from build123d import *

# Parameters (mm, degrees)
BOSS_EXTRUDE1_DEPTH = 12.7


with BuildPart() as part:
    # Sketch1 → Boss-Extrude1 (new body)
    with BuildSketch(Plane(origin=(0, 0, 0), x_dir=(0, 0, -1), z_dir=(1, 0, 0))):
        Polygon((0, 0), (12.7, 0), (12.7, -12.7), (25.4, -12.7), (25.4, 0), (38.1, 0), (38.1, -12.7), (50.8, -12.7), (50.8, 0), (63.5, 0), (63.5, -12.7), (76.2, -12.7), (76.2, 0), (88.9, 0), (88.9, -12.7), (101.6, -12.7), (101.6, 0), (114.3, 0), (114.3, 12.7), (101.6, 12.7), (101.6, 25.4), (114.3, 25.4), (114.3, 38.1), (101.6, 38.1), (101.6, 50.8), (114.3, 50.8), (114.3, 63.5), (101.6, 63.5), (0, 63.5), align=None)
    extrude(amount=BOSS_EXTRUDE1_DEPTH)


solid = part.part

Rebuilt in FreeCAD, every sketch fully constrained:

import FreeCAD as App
import Part
import Sketcher
Q = App.Units.Quantity

doc = App.newDocument("Part")
params = doc.addObject("Spreadsheet::Sheet", "Params")
for row, (alias, value) in enumerate([
    ("sketch1_width", "0.5 in"),
    ("pad1_length", "0.5 in"),
], start=1):
    params.set(f"A{row}", alias)
    params.set(f"B{row}", "=" + value)
    params.setAlias(f"B{row}", alias)

body = doc.addObject("PartDesign::Body", "Body")

# Sketch on YZ plane
sketch1 = body.newObject("Sketcher::SketchObject", "Sketch")
sketch1.AttachmentSupport = (doc.getObject("YZ_Plane"), [""])
sketch1.MapMode = "FlatFace"
sketch1.addGeometry([
    Part.LineSegment(App.Vector(0, 0, 0), App.Vector(0, -13, 0)),  # 0
    Part.LineSegment(App.Vector(0, -13, 0), App.Vector(-13, -13, 0)),  # 1
    Part.LineSegment(App.Vector(-13, -13, 0), App.Vector(-13, -25, 0)),  # 2
    Part.LineSegment(App.Vector(-13, -25, 0), App.Vector(0, -25, 0)),  # 3
    Part.LineSegment(App.Vector(0, -25, 0), App.Vector(0, -38, 0)),  # 4
    Part.LineSegment(App.Vector(0, -38, 0), App.Vector(-13, -38, 0)),  # 5
    Part.LineSegment(App.Vector(-13, -38, 0), App.Vector(-13, -51, 0)),  # 6
    Part.LineSegment(App.Vector(-13, -51, 0), App.Vector(0, -51, 0)),  # 7
    Part.LineSegment(App.Vector(0, -51, 0), App.Vector(0, -64, 0)),  # 8
    Part.LineSegment(App.Vector(0, -64, 0), App.Vector(-13, -64, 0)),  # 9
    Part.LineSegment(App.Vector(-13, -64, 0), App.Vector(-13, -76, 0)),  # 10
    Part.LineSegment(App.Vector(-13, -76, 0), App.Vector(0, -76, 0)),  # 11
    Part.LineSegment(App.Vector(0, -76, 0), App.Vector(0, -89, 0)),  # 12
    Part.LineSegment(App.Vector(0, -89, 0), App.Vector(-13, -89, 0)),  # 13
    Part.LineSegment(App.Vector(-13, -89, 0), App.Vector(-13, -102, 0)),  # 14
    Part.LineSegment(App.Vector(-13, -102, 0), App.Vector(0, -102, 0)),  # 15
    Part.LineSegment(App.Vector(0, -102, 0), App.Vector(0, -114, 0)),  # 16
    Part.LineSegment(App.Vector(0, -114, 0), App.Vector(13, -114, 0)),  # 17
    Part.LineSegment(App.Vector(13, -114, 0), App.Vector(13, -102, 0)),  # 18
    Part.LineSegment(App.Vector(13, -102, 0), App.Vector(25, -102, 0)),  # 19
    Part.LineSegment(App.Vector(25, -102, 0), App.Vector(25, -114, 0)),  # 20
    Part.LineSegment(App.Vector(25, -114, 0), App.Vector(38, -114, 0)),  # 21
    Part.LineSegment(App.Vector(38, -114, 0), App.Vector(38, -102, 0)),  # 22
    Part.LineSegment(App.Vector(38, -102, 0), App.Vector(51, -102, 0)),  # 23
    Part.LineSegment(App.Vector(51, -102, 0), App.Vector(51, -114, 0)),  # 24
    Part.LineSegment(App.Vector(51, -114, 0), App.Vector(64, -114, 0)),  # 25
    Part.LineSegment(App.Vector(64, -114, 0), App.Vector(64, 0, 0)),  # 26
    Part.LineSegment(App.Vector(64, 0, 0), App.Vector(0, 0, 0)),  # 27
], False)
sketch1.addConstraint([
    Sketcher.Constraint("Coincident", 0, 2, 1, 1),
    Sketcher.Constraint("Coincident", 1, 2, 2, 1),
    Sketcher.Constraint("Coincident", 2, 2, 3, 1),
    Sketcher.Constraint("Coincident", 3, 2, 4, 1),
    Sketcher.Constraint("Coincident", 4, 2, 5, 1),
    Sketcher.Constraint("Coincident", 5, 2, 6, 1),
    Sketcher.Constraint("Coincident", 6, 2, 7, 1),
    Sketcher.Constraint("Coincident", 7, 2, 8, 1),
    Sketcher.Constraint("Coincident", 8, 2, 9, 1),
    Sketcher.Constraint("Coincident", 9, 2, 10, 1),
    Sketcher.Constraint("Coincident", 10, 2, 11, 1),
    Sketcher.Constraint("Coincident", 11, 2, 12, 1),
    Sketcher.Constraint("Coincident", 12, 2, 13, 1),
    Sketcher.Constraint("Coincident", 13, 2, 14, 1),
    Sketcher.Constraint("Coincident", 14, 2, 15, 1),
    Sketcher.Constraint("Coincident", 15, 2, 16, 1),
    Sketcher.Constraint("Coincident", 16, 2, 17, 1),
    Sketcher.Constraint("Coincident", 17, 2, 18, 1),
    Sketcher.Constraint("Coincident", 18, 2, 19, 1),
    Sketcher.Constraint("Coincident", 19, 2, 20, 1),
    Sketcher.Constraint("Coincident", 20, 2, 21, 1),
    Sketcher.Constraint("Coincident", 21, 2, 22, 1),
    Sketcher.Constraint("Coincident", 22, 2, 23, 1),
    Sketcher.Constraint("Coincident", 23, 2, 24, 1),
    Sketcher.Constraint("Coincident", 24, 2, 25, 1),
    Sketcher.Constraint("Coincident", 25, 2, 26, 1),
    Sketcher.Constraint("Coincident", 26, 2, 27, 1),
    Sketcher.Constraint("Coincident", 27, 2, 0, 1),
    Sketcher.Constraint("Vertical", 0),
    Sketcher.Constraint("Horizontal", 1),
    Sketcher.Constraint("Vertical", 2),
    Sketcher.Constraint("Horizontal", 3),
    Sketcher.Constraint("Vertical", 4),
    Sketcher.Constraint("Horizontal", 5),
    Sketcher.Constraint("Vertical", 6),
    Sketcher.Constraint("Horizontal", 7),
    Sketcher.Constraint("Vertical", 8),
    Sketcher.Constraint("Horizontal", 9),
    Sketcher.Constraint("Vertical", 10),
    Sketcher.Constraint("Horizontal", 11),
    Sketcher.Constraint("Vertical", 12),
    Sketcher.Constraint("Horizontal", 13),
    Sketcher.Constraint("Vertical", 14),
    Sketcher.Constraint("Horizontal", 15),
    Sketcher.Constraint("Vertical", 16),
    Sketcher.Constraint("Horizontal", 17),
    Sketcher.Constraint("Vertical", 18),
    Sketcher.Constraint("Horizontal", 19),
    Sketcher.Constraint("Vertical", 20),
    Sketcher.Constraint("Horizontal", 21),
    Sketcher.Constraint("Vertical", 22),
    Sketcher.Constraint("Horizontal", 23),
    Sketcher.Constraint("Vertical", 24),
    Sketcher.Constraint("Horizontal", 25),
    Sketcher.Constraint("Vertical", 26),
    Sketcher.Constraint("Horizontal", 27),
    Sketcher.Constraint("Coincident", 27, 2, -1, 1),
    Sketcher.Constraint("Symmetric", 14, 2, 18, 2, -2),
    Sketcher.Constraint("PointOnObject", 3, 2, -2),
    Sketcher.Constraint("PointOnObject", 7, 2, -2),
    Sketcher.Constraint("PointOnObject", 11, 2, -2),
    Sketcher.Constraint("PointOnObject", 15, 2, -2),
    Sketcher.Constraint("Horizontal", 17, 2, 20, 2),
    Sketcher.Constraint("Horizontal", 19, 2, 22, 2),
    Sketcher.Constraint("Horizontal", 21, 2, 24, 2),
    Sketcher.Constraint("Vertical", 2, 2, 5, 2),
    Sketcher.Constraint("Vertical", 6, 2, 9, 2),
    Sketcher.Constraint("Vertical", 10, 2, 13, 2),
    Sketcher.Constraint("Equal", 17, 19),
    Sketcher.Constraint("Equal", 19, 21),
    Sketcher.Constraint("Equal", 21, 23),
    Sketcher.Constraint("Equal", 23, 25),
    Sketcher.Constraint("Equal", 25, 0),
    Sketcher.Constraint("Equal", 0, 2),
    Sketcher.Constraint("Equal", 2, 4),
    Sketcher.Constraint("Equal", 4, 6),
    Sketcher.Constraint("Equal", 6, 8),
    Sketcher.Constraint("Equal", 8, 10),
    Sketcher.Constraint("Equal", 10, 12),
    Sketcher.Constraint("Equal", 12, 14),
    Sketcher.Constraint("Equal", 14, 16),
    Sketcher.Constraint("DistanceX", 1, 2, 1, 1, Q("0.5 in")),
])
sketch1.setExpression("Constraints[81]", "Params.sketch1_width")
pad1 = body.newObject("PartDesign::Pad", "Pad")
pad1.Profile = sketch1
pad1.setExpression("Length", "Params.pad1_length")

doc.recompute()
